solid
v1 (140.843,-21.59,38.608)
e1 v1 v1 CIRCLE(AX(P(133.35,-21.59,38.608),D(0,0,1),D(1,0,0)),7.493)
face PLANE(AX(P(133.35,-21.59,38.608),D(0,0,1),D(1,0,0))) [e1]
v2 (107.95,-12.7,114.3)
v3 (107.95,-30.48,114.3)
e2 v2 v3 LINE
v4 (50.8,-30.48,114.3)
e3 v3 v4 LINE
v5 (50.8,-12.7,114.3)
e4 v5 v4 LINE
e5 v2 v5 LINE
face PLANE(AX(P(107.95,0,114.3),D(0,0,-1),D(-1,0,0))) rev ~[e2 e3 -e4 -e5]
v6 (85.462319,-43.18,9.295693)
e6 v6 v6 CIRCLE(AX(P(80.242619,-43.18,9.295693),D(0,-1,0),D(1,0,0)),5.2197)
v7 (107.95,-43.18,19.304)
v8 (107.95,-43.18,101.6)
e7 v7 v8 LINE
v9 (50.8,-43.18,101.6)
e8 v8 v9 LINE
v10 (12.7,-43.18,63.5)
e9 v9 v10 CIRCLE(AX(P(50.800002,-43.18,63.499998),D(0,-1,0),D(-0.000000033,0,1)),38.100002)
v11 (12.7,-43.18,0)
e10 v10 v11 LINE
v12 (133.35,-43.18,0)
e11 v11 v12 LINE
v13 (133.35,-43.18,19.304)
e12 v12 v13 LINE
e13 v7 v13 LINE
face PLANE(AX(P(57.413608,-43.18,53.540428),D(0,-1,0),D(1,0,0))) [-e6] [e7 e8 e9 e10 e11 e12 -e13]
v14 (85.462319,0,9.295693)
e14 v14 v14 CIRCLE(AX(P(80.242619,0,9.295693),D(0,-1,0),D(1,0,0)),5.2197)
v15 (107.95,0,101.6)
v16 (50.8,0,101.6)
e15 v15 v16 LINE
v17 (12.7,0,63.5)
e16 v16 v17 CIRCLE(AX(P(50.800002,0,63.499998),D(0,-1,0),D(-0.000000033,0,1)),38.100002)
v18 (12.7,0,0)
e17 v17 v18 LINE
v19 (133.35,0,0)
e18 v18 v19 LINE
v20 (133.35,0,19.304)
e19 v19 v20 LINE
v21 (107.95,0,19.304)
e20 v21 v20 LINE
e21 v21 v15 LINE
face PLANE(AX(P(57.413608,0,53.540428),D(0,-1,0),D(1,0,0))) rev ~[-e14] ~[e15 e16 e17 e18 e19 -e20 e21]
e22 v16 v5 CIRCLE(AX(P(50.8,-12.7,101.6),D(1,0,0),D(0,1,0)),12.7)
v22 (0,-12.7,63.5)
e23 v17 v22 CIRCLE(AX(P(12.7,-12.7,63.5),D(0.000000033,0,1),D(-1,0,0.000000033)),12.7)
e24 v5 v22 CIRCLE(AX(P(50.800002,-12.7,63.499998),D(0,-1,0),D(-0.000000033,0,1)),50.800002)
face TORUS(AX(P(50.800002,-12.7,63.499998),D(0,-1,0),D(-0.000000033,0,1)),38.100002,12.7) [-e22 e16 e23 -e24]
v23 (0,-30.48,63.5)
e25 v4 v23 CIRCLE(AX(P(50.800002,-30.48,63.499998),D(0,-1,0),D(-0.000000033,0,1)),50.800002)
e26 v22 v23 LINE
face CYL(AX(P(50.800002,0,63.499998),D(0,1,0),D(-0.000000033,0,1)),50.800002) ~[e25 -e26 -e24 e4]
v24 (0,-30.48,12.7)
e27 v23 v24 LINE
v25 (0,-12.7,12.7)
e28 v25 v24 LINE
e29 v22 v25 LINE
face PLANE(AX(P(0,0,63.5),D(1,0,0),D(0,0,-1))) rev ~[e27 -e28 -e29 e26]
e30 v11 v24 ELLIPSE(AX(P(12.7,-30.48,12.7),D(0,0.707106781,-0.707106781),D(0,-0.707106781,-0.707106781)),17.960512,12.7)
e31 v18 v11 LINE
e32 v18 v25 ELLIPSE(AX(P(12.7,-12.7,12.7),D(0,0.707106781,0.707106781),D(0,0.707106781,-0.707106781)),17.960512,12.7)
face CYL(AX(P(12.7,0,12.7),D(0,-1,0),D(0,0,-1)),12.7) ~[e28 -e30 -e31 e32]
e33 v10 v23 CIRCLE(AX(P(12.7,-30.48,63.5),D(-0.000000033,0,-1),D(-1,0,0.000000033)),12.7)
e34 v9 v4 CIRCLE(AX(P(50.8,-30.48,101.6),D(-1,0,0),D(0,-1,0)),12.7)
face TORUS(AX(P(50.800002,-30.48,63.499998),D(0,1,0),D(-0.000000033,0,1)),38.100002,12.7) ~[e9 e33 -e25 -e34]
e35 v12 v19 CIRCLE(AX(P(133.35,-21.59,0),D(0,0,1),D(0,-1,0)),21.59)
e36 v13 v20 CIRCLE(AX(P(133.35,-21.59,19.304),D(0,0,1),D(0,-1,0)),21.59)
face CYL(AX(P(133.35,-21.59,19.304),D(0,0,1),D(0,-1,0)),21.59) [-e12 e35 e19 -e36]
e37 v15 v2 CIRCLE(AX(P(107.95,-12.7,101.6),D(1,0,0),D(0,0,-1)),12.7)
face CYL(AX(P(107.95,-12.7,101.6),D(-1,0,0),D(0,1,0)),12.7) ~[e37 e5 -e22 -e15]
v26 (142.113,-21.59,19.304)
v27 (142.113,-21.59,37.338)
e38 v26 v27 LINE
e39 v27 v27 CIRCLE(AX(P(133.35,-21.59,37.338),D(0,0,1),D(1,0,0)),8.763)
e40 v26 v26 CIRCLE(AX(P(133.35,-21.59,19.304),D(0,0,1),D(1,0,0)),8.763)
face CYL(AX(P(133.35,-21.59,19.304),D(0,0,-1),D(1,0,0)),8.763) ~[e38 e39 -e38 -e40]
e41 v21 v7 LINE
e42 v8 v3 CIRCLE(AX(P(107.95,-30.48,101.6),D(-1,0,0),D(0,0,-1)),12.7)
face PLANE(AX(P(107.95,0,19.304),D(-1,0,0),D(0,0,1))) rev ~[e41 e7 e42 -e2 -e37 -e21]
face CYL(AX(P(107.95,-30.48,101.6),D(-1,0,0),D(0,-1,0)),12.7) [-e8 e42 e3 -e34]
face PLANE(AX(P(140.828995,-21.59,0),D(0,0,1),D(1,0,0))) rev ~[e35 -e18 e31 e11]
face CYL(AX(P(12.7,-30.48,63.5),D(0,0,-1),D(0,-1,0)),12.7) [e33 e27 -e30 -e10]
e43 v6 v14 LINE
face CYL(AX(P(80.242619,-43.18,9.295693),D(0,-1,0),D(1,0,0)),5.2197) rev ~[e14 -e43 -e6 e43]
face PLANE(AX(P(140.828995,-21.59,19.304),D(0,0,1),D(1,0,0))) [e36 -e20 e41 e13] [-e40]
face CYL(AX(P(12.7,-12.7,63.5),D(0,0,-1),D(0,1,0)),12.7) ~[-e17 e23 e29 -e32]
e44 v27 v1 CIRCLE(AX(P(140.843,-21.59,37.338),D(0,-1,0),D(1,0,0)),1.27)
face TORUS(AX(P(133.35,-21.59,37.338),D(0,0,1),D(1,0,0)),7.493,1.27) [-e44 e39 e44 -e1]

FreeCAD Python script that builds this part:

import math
import FreeCAD as App
import Part
import Sketcher
Q = App.Units.Quantity


def edges_at(feature, points):
    """Names of the edges that pass closest to the given points."""
    edges = feature.Shape.Edges
    near = lambda p: min(range(len(edges)), key=lambda i: edges[i].distToShape(Part.Vertex(*p))[0])
    return sorted({f"Edge{near(p) + 1}" for p in points})

doc = App.newDocument("Part")
body = doc.addObject("PartDesign::Body", "Body")

# Sketch on XZ plane
sketch1 = body.newObject("Sketcher::SketchObject", "Sketch")
sketch1.AttachmentSupport = (doc.getObject("XZ_Plane"), [""])
sketch1.MapMode = "FlatFace"
sketch1.addGeometry([
    Part.LineSegment(App.Vector(0, 63.5, 0), App.Vector(0, 0, 0)),  # 0
    Part.LineSegment(App.Vector(0, 0, 0), App.Vector(133.35, 0, 0)),  # 1
    Part.LineSegment(App.Vector(133.35, 0, 0), App.Vector(133.35, 19.304, 0)),  # 2
    Part.LineSegment(App.Vector(133.35, 19.304, 0), App.Vector(107.95, 19.304, 0)),  # 3
    Part.LineSegment(App.Vector(107.95, 19.304, 0), App.Vector(107.95, 114.3, 0)),  # 4
    Part.LineSegment(App.Vector(107.95, 114.3, 0), App.Vector(50.8, 114.3, 0)),  # 5
    Part.ArcOfCircle(Part.Circle(App.Vector(50.800002, 63.499998, 0), App.Vector(0, 0, 1), 50.800002), math.radians(90.000002), math.radians(179.999998)),  # 6
], False)
sketch1.addConstraint([
    Sketcher.Constraint("Coincident", 0, 2, 1, 1),
    Sketcher.Constraint("Coincident", 1, 2, 2, 1),
    Sketcher.Constraint("Coincident", 2, 2, 3, 1),
    Sketcher.Constraint("Coincident", 3, 2, 4, 1),
    Sketcher.Constraint("Coincident", 4, 2, 5, 1),
    Sketcher.Constraint("Tangent", 5, 2, 6, 1),
    Sketcher.Constraint("Tangent", 6, 2, 0, 1),
    Sketcher.Constraint("Vertical", 0),
    Sketcher.Constraint("Horizontal", 1),
    Sketcher.Constraint("Vertical", 2),
    Sketcher.Constraint("Horizontal", 3),
    Sketcher.Constraint("Vertical", 4),
    Sketcher.Constraint("Horizontal", 5),
    Sketcher.Constraint("Coincident", 0, 2, -1, 1),
    Sketcher.Constraint("Radius", 6, Q("2.0000001 in")),
    Sketcher.Constraint("DistanceX", 3, 2, 3, 1, Q("1 in")),
    Sketcher.Constraint("DistanceY", 0, 2, 0, 1, Q("2.5 in")),
    Sketcher.Constraint("DistanceX", 1, 1, 1, 2, Q("5.25 in")),
    Sketcher.Constraint("DistanceY", 2, 1, 2, 2, Q("0.76 in")),
])
pad1 = body.newObject("PartDesign::Pad", "Pad")
pad1.Profile = sketch1
pad1.Length = Q("1.7 in")

# Sketch on XY plane
sketch2 = body.newObject("Sketcher::SketchObject", "Sketch001")
sketch2.AttachmentSupport = (doc.getObject("XY_Plane"), [""])
sketch2.MapMode = "FlatFace"
sketch2.AttachmentOffset = App.Placement(App.Vector(0, 0, 0.76 * 25.4), App.Rotation())
sketch2.addGeometry([
    Part.LineSegment(App.Vector(133.35, 0, 0), App.Vector(133.35, -43.18, 0)),
    Part.ArcOfCircle(Part.Circle(App.Vector(133.35, -21.59, 0), App.Vector(0, 0, 1), 21.59), math.radians(-90), math.radians(90)),
], False)
sketch2.addConstraint([
    Sketcher.Constraint("Coincident", 0, 1, 1, 2),
    Sketcher.Constraint("Coincident", 1, 1, 0, 2),
    Sketcher.Constraint("Vertical", 0),
    Sketcher.Constraint("PointOnObject", 0, 1, -1),
    Sketcher.Constraint("Vertical", 1, 3, 0, 1),
    Sketcher.Constraint("Radius", 1, Q("0.85 in")),
    Sketcher.Constraint("DistanceX", -1, 1, 1, 3, Q("5.25 in")),
])
pad2 = body.newObject("PartDesign::Pad", "Pad001")
pad2.Profile = sketch2
pad2.Length = Q("0.76 in")
pad2.Reversed = True

# Sketch on XY plane
sketch3 = body.newObject("Sketcher::SketchObject", "Sketch002")
sketch3.AttachmentSupport = (doc.getObject("XY_Plane"), [""])
sketch3.MapMode = "FlatFace"
sketch3.AttachmentOffset = App.Placement(App.Vector(0, 0, 0.76 * 25.4), App.Rotation())
sketch3.addGeometry(Part.Circle(App.Vector(133.35, -21.59, 0), App.Vector(0, 0, 1), 8.763), False)
sketch3.addConstraint([
    Sketcher.Constraint("Diameter", 0, Q("0.69 in")),
    Sketcher.Constraint("DistanceX", -1, 1, 0, 3, Q("5.25 in")),
    Sketcher.Constraint("DistanceY", 0, 3, -1, 1, Q("0.85 in")),
])
pad3 = body.newObject("PartDesign::Pad", "Pad002")
pad3.Profile = sketch3
pad3.Length = Q("0.76 in")
doc.recompute()

fillet = body.newObject("PartDesign::Fillet", "Fillet")
fillet.Base = (pad3, edges_at(pad3, [(124.587, -21.59, 38.608)]))
fillet.Radius = Q("0.05 in")
doc.recompute()

fillet2 = body.newObject("PartDesign::Fillet", "Fillet001")
fillet2.Base = (fillet, edges_at(fillet, [
    (50.8, -21.59, 114.3),
    (0, -21.59, 63.5),
    (14.879, 0, 99.421),
    (14.879, -43.18, 99.421),
    (0, -21.59, 0),
]))
fillet2.Radius = Q("0.5 in")

# Sketch on XZ plane
sketch4 = body.newObject("Sketcher::SketchObject", "Sketch003")
sketch4.AttachmentSupport = (doc.getObject("XZ_Plane"), [""])
sketch4.MapMode = "FlatFace"
sketch4.AttachmentOffset = App.Placement(App.Vector(0, 0, 1.7 * 25.4), App.Rotation())
sketch4.addGeometry(Part.Circle(App.Vector(80.242619, 9.295693, 0), App.Vector(0, 0, 1), 5.2197), False)
sketch4.addConstraint([
    Sketcher.Constraint("Diameter", 0, Q("0.411 in")),
    Sketcher.Constraint("DistanceX", -1, 1, 0, 3, 80.242619),
    Sketcher.Constraint("DistanceY", -1, 1, 0, 3, 9.295693),
])
pocket1 = body.newObject("PartDesign::Pocket", "Pocket")
pocket1.Profile = sketch4
pocket1.Type = "ThroughAll"

doc.recompute()
